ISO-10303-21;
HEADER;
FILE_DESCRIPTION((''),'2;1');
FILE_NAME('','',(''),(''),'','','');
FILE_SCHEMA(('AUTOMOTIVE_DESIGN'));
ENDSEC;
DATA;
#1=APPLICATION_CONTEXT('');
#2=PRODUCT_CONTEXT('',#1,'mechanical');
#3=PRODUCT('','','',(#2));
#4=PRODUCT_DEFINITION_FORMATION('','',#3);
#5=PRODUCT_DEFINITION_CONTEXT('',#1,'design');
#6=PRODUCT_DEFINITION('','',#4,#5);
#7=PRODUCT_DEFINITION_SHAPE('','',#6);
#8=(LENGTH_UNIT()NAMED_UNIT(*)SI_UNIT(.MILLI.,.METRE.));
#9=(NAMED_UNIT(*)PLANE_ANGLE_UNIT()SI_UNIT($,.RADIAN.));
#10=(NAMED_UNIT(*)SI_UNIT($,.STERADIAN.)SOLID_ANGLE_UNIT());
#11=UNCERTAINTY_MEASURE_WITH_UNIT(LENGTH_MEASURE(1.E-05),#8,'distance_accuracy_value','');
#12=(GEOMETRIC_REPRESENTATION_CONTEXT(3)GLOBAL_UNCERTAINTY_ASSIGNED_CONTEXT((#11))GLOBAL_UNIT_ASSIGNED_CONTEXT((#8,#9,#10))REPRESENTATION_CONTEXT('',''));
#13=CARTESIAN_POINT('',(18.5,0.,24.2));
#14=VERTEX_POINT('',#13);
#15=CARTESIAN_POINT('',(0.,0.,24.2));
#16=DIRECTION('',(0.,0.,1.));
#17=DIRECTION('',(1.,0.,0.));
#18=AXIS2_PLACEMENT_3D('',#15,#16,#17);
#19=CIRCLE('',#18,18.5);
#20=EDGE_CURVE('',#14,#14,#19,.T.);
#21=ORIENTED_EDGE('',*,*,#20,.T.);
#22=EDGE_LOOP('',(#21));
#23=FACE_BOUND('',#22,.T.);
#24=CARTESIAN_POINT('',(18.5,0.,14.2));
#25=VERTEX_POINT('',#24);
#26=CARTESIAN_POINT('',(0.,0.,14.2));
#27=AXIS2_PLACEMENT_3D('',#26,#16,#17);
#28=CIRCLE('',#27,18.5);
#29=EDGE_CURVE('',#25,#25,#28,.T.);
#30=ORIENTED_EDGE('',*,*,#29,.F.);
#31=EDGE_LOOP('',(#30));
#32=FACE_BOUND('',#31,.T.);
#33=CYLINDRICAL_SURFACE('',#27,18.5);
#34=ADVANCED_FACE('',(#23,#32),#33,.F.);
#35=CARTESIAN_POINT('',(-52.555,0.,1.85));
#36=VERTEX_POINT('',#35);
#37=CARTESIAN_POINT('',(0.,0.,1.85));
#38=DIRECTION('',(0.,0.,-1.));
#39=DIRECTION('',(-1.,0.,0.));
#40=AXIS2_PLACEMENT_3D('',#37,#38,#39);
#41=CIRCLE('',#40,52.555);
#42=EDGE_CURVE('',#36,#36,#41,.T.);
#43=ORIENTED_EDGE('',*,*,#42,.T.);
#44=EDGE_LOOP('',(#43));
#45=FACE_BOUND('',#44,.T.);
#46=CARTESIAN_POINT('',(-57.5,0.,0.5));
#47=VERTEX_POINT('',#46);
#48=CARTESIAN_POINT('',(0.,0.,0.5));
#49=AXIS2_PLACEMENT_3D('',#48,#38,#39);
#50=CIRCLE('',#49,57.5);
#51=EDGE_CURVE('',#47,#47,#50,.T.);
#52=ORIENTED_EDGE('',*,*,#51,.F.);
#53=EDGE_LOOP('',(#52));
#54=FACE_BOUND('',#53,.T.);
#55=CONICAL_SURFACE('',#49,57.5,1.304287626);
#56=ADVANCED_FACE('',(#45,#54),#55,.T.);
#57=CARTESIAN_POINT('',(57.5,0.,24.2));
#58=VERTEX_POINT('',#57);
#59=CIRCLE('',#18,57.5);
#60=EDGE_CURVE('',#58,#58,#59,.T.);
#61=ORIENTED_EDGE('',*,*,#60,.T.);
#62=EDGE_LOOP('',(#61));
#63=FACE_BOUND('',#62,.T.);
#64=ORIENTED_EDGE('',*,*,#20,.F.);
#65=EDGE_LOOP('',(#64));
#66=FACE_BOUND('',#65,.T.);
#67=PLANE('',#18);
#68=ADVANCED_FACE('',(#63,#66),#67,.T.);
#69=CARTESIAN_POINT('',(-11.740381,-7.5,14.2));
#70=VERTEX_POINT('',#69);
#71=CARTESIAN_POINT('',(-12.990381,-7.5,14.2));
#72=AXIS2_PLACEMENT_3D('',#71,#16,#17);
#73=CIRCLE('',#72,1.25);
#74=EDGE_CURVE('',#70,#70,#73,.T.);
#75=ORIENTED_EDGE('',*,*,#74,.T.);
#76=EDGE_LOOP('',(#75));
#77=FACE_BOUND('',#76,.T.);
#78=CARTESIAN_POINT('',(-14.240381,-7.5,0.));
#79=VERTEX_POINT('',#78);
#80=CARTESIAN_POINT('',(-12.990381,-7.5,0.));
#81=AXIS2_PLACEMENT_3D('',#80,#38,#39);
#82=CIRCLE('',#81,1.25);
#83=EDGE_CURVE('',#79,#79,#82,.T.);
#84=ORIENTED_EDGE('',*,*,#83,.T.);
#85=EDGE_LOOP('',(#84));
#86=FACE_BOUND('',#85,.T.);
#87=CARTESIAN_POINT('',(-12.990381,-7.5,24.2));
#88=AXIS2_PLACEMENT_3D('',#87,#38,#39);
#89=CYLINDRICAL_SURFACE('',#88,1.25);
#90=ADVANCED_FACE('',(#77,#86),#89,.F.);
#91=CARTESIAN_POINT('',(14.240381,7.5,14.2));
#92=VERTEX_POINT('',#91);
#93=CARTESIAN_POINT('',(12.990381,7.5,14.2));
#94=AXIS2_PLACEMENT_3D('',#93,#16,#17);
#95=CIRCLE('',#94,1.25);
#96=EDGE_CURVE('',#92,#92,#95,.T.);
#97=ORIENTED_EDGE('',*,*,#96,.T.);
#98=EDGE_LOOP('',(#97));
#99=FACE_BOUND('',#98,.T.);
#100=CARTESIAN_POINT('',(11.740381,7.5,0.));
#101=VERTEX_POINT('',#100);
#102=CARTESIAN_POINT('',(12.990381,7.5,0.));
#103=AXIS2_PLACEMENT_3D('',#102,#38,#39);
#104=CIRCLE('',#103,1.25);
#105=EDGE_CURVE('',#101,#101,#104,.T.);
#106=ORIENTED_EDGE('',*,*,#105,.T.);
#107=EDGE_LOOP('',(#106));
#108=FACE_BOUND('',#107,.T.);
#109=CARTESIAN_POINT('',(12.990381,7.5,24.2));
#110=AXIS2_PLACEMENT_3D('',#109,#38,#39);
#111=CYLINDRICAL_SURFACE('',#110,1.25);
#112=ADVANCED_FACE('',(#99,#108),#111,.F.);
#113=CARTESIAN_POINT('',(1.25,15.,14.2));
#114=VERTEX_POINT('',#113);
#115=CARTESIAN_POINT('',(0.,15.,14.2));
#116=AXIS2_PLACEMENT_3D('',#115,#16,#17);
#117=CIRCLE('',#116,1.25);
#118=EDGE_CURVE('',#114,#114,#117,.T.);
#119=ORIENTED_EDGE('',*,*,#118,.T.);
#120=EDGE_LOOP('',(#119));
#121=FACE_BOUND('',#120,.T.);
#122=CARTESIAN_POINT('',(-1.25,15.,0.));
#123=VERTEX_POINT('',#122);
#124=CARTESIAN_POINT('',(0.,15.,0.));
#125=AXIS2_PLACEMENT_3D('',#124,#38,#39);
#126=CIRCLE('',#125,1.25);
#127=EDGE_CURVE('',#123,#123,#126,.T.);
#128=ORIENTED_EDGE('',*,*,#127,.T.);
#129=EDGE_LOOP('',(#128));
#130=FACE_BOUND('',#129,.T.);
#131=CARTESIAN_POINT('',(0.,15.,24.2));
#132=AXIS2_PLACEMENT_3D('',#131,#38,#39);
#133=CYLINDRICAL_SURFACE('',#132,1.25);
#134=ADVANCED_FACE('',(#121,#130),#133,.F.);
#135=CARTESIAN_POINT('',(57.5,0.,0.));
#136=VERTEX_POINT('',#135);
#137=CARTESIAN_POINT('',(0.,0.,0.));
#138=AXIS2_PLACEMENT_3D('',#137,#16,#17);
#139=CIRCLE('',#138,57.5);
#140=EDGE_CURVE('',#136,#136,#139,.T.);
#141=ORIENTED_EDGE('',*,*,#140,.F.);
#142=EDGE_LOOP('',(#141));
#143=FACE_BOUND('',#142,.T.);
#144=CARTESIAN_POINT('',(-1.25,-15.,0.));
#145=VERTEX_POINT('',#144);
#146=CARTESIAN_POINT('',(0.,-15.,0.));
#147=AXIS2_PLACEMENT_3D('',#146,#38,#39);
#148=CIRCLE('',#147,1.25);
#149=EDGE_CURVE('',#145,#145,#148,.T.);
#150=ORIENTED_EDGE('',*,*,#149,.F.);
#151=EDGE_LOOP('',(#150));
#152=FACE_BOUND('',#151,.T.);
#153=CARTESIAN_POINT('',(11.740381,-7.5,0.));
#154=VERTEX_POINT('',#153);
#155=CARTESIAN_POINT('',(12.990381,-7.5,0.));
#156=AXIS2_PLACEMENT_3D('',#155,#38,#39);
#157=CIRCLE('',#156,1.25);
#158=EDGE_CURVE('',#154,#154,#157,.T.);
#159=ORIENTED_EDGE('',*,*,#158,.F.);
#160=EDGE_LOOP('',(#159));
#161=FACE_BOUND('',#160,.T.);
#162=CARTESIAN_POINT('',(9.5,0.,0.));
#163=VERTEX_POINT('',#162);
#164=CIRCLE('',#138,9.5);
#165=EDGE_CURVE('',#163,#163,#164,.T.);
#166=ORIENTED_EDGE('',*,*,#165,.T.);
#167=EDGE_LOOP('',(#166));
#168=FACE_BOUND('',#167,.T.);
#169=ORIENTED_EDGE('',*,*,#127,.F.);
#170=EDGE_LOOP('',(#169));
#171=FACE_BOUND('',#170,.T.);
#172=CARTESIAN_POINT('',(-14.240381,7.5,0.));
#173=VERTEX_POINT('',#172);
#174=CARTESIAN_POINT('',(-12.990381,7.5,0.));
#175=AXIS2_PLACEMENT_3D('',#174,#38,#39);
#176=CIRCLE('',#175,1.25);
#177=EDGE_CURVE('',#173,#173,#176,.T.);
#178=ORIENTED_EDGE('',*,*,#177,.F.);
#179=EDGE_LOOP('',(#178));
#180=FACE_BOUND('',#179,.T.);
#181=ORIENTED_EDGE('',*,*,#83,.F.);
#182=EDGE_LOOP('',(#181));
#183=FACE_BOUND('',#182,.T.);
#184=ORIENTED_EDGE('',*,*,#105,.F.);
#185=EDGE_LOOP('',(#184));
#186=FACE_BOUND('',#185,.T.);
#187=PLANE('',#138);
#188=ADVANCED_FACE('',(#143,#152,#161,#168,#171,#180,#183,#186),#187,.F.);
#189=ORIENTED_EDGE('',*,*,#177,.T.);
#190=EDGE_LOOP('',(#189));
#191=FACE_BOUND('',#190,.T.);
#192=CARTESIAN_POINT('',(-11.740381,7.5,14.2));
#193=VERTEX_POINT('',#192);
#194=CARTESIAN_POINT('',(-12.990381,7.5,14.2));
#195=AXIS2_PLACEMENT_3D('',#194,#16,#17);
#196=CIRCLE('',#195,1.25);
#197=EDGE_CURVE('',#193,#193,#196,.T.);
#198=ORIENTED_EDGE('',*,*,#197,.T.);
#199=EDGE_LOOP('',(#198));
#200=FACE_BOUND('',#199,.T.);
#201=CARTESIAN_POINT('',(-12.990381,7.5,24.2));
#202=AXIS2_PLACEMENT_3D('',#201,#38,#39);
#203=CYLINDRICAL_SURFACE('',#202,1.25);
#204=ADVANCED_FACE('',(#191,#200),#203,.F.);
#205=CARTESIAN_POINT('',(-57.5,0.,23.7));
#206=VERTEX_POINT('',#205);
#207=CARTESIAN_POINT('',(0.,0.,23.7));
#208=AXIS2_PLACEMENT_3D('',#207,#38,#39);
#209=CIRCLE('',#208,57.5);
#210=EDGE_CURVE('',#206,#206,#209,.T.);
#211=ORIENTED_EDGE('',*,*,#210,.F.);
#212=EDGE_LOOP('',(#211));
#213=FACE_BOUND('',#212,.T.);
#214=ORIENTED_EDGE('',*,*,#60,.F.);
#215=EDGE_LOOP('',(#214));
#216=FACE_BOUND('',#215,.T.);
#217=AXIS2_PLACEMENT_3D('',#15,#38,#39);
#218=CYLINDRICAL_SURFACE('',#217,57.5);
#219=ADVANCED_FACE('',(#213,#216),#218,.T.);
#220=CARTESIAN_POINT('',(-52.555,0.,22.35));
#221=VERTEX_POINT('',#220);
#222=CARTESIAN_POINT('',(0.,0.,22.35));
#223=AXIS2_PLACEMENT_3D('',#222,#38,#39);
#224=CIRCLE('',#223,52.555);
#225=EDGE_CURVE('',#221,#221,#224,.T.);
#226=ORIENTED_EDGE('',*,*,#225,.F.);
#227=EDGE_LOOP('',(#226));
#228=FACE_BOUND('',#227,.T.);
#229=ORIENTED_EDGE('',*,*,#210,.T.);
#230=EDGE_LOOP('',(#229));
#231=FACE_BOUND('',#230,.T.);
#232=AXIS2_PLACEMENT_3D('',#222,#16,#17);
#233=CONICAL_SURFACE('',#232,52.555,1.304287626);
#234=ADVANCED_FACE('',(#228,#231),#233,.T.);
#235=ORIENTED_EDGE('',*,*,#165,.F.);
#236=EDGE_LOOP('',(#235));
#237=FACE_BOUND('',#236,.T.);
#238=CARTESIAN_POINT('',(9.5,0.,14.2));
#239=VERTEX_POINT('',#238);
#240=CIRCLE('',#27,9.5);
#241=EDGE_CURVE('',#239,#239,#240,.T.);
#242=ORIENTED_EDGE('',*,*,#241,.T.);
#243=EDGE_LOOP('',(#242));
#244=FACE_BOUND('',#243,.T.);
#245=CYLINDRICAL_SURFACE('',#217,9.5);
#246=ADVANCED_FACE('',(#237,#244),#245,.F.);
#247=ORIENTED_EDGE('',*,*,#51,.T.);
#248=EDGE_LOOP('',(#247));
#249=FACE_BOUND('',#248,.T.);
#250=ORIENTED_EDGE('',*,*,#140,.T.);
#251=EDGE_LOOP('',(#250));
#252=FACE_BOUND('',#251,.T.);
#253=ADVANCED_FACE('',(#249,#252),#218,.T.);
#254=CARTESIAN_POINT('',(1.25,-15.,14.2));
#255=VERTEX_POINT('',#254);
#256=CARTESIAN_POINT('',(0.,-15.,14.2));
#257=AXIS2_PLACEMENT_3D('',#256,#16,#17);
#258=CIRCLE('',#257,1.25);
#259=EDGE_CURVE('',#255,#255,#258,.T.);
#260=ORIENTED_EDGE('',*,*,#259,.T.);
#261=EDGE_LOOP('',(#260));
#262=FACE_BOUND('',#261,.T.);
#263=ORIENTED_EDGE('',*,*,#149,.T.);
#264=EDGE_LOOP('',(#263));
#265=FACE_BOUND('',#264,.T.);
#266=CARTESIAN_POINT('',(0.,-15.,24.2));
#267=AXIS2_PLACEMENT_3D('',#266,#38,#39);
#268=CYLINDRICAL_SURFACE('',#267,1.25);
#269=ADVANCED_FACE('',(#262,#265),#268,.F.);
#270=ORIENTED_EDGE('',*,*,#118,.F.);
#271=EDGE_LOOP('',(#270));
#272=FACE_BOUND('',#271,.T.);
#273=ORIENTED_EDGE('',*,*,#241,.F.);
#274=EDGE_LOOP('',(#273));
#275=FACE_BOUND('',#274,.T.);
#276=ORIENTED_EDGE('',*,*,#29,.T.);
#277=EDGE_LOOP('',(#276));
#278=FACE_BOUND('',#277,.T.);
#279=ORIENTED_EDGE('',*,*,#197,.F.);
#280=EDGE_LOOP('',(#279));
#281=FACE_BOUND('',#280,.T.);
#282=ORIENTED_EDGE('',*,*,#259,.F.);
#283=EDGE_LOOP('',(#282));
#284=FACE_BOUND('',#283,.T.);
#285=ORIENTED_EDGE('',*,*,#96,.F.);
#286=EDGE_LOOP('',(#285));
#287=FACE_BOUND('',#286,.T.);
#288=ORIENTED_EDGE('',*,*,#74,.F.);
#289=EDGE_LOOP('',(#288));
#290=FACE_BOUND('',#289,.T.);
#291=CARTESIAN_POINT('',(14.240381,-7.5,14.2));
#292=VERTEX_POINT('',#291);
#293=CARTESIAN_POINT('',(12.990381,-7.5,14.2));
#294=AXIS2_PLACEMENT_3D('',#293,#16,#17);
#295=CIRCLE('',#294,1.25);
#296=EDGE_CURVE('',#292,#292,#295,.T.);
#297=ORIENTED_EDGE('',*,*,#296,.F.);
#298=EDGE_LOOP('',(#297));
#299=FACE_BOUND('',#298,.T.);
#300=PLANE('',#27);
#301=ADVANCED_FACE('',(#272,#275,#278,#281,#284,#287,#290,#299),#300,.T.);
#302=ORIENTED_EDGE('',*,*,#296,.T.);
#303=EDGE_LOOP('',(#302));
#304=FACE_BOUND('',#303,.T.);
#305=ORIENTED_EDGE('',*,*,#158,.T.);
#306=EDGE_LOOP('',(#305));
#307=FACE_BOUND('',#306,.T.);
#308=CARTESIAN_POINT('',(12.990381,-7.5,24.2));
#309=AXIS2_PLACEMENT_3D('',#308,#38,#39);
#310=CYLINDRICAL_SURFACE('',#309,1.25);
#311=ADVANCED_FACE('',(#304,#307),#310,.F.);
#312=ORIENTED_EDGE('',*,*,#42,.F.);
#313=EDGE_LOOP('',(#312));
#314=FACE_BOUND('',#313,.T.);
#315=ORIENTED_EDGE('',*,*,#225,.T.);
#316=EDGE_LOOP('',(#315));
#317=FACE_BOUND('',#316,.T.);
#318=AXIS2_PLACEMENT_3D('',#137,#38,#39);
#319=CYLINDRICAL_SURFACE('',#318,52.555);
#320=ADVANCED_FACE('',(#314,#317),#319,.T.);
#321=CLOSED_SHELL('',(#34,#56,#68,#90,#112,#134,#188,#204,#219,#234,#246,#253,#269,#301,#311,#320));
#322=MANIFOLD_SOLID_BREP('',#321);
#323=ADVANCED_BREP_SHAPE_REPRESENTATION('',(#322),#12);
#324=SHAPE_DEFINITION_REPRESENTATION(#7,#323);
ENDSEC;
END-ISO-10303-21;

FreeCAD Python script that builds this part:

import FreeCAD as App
import Part
import Sketcher
from FreeCAD import Vector

doc = App.newDocument("Part")
params = doc.addObject("Spreadsheet::Sheet", "Params")
for row, (alias, value) in enumerate([
    ("sketch1_diameter", "115 mm"),
    ("sketch1_diameter2", "19 mm"),
    ("pad1_length", "24.2 mm"),
    ("sketch2_diameter", "37 mm"),
    ("sketch2_diameter2", "19 mm"),
    ("pocket1_length", "10 mm"),
    ("sketch3_diameter", "2.5 mm"),
    ("sketch4_height", "23.2 mm"),
    ("sketch4_height2", "20.5 mm"),
    ("groove_angle", "360 deg"),
], start=1):
    params.set(f"A{row}", alias)
    params.set(f"B{row}", "=" + value)
    params.setAlias(f"B{row}", alias)

body = doc.addObject("PartDesign::Body", "Body")

# Sketch on XY plane
sketch1 = body.newObject("Sketcher::SketchObject", "Sketch")
sketch1.AttachmentSupport = (doc.getObject("XY_Plane"), [""])
sketch1.MapMode = "FlatFace"
sketch1.addGeometry(Part.Circle(Vector(0, 0, 0), Vector(0, 0, 1), 57.5), False)
sketch1.addGeometry(Part.Circle(Vector(0, 0, 0), Vector(0, 0, 1), 9.5), False)
sketch1.addConstraint(Sketcher.Constraint("Coincident", 0, 3, -1, 1))
sketch1.addConstraint(Sketcher.Constraint("Coincident", 1, 3, -1, 1))
sketch1.addConstraint(Sketcher.Constraint("Diameter", 0, 115.0))
sketch1.addConstraint(Sketcher.Constraint("Diameter", 1, 19.0))
sketch1.setExpression("Constraints[2]", "Params.sketch1_diameter")
sketch1.setExpression("Constraints[3]", "Params.sketch1_diameter2")
pad1 = body.newObject("PartDesign::Pad", "Pad")
pad1.Profile = sketch1
pad1.setExpression("Length", "Params.pad1_length")

# Sketch on XY plane
sketch2 = body.newObject("Sketcher::SketchObject", "Sketch001")
sketch2.AttachmentSupport = (doc.getObject("XY_Plane"), [""])
sketch2.MapMode = "FlatFace"
sketch2.AttachmentOffset = App.Placement(Vector(0, 0, 24.2), App.Rotation())
sketch2.addGeometry(Part.Circle(Vector(0, 0, 0), Vector(0, 0, 1), 18.5), False)
sketch2.addGeometry(Part.Circle(Vector(0, 0, 0), Vector(0, 0, 1), 9.5), False)
sketch2.addConstraint(Sketcher.Constraint("Coincident", 0, 3, -1, 1))
sketch2.addConstraint(Sketcher.Constraint("Coincident", 1, 3, -1, 1))
sketch2.addConstraint(Sketcher.Constraint("Diameter", 0, 37.0))
sketch2.addConstraint(Sketcher.Constraint("Diameter", 1, 19.0))
sketch2.setExpression("Constraints[2]", "Params.sketch2_diameter")
sketch2.setExpression("Constraints[3]", "Params.sketch2_diameter2")
pocket1 = body.newObject("PartDesign::Pocket", "Pocket")
pocket1.Profile = sketch2
pocket1.setExpression("Length", "Params.pocket1_length")

# Sketch on XY plane
sketch3 = body.newObject("Sketcher::SketchObject", "Sketch002")
sketch3.AttachmentSupport = (doc.getObject("XY_Plane"), [""])
sketch3.MapMode = "FlatFace"
sketch3.addGeometry(Part.Circle(Vector(0, 15, 0), Vector(0, 0, 1), 1.25), False)
sketch3.addGeometry(Part.Circle(Vector(-12.990381, -7.5, 0), Vector(0, 0, 1), 1.25), False)
sketch3.addGeometry(Part.Circle(Vector(12.990381, -7.5, 0), Vector(0, 0, 1), 1.25), False)
sketch3.addGeometry(Part.Circle(Vector(-12.990381, 7.5, 0), Vector(0, 0, 1), 1.25), False)
sketch3.addGeometry(Part.Circle(Vector(0, -15, 0), Vector(0, 0, 1), 1.25), False)
sketch3.addGeometry(Part.Circle(Vector(12.990381, 7.5, 0), Vector(0, 0, 1), 1.25), False)
sketch3.addConstraint(Sketcher.Constraint("Equal", 0, 1))
sketch3.addConstraint(Sketcher.Constraint("Equal", 1, 2))
sketch3.addConstraint(Sketcher.Constraint("Equal", 2, 3))
sketch3.addConstraint(Sketcher.Constraint("Equal", 3, 4))
sketch3.addConstraint(Sketcher.Constraint("Equal", 4, 5))
sketch3.addConstraint(Sketcher.Constraint("Symmetric", 2, 3, 3, 3, -1, 1))
sketch3.addConstraint(Sketcher.Constraint("Symmetric", 0, 3, 4, 3, -1, 1))
sketch3.addConstraint(Sketcher.Constraint("Symmetric", 1, 3, 5, 3, -1, 1))
sketch3.addConstraint(Sketcher.Constraint("Symmetric", 1, 3, 2, 3, -2))
sketch3.addConstraint(Sketcher.Constraint("PointOnObject", 0, 3, -2))
sketch3.addConstraint(Sketcher.Constraint("Diameter", 0, 2.5))
sketch3.addConstraint(Sketcher.Constraint("DistanceY", -1, 1, 0, 3, 15.0))
sketch3.addConstraint(Sketcher.Constraint("DistanceY", 1, 3, 3, 3, 15.0))
sketch3.addConstraint(Sketcher.Constraint("DistanceX", 1, 3, -1, 1, 12.990381))
sketch3.setExpression("Constraints[10]", "Params.sketch3_diameter")
pocket2 = body.newObject("PartDesign::Pocket", "Pocket001")
pocket2.Profile = sketch3
pocket2.Type = "ThroughAll"
pocket2.Reversed = True

# Sketch on XZ plane
sketch4 = body.newObject("Sketcher::SketchObject", "Sketch003")
sketch4.AttachmentSupport = (doc.getObject("XZ_Plane"), [""])
sketch4.MapMode = "FlatFace"
sketch4.addGeometry(Part.LineSegment(Vector(52.555, 22.35, 0), Vector(57.5, 23.7, 0)), False)
sketch4.addGeometry(Part.LineSegment(Vector(57.5, 23.7, 0), Vector(57.5, 0.5, 0)), False)
sketch4.addGeometry(Part.LineSegment(Vector(57.5, 0.5, 0), Vector(52.555, 1.85, 0)), False)
sketch4.addGeometry(Part.LineSegment(Vector(52.555, 1.85, 0), Vector(52.555, 22.35, 0)), False)
sketch4.addConstraint(Sketcher.Constraint("Coincident", 0, 2, 1, 1))
sketch4.addConstraint(Sketcher.Constraint("Coincident", 1, 2, 2, 1))
sketch4.addConstraint(Sketcher.Constraint("Coincident", 2, 2, 3, 1))
sketch4.addConstraint(Sketcher.Constraint("Coincident", 3, 2, 0, 1))
sketch4.addConstraint(Sketcher.Constraint("Vertical", 1))
sketch4.addConstraint(Sketcher.Constraint("Vertical", 3))
sketch4.addConstraint(Sketcher.Constraint("Equal", 0, 2))
sketch4.addConstraint(Sketcher.Constraint("DistanceY", 1, 2, 1, 1, 23.2))
sketch4.addConstraint(Sketcher.Constraint("DistanceY", 3, 1, 3, 2, 20.5))
sketch4.addConstraint(Sketcher.Constraint("DistanceX", -1, 1, 0, 2, 57.5))
sketch4.addConstraint(Sketcher.Constraint("DistanceY", -1, 1, 0, 2, 23.7))
sketch4.addConstraint(Sketcher.Constraint("DistanceX", -1, 1, 2, 2, 52.555))
sketch4.setExpression("Constraints[7]", "Params.sketch4_height")
sketch4.setExpression("Constraints[8]", "Params.sketch4_height2")
groove = body.newObject("PartDesign::Groove", "Groove")
groove.Profile = sketch4
groove.ReferenceAxis = (sketch4, ["V_Axis"])
groove.setExpression("Angle", "Params.groove_angle")

doc.recompute()
